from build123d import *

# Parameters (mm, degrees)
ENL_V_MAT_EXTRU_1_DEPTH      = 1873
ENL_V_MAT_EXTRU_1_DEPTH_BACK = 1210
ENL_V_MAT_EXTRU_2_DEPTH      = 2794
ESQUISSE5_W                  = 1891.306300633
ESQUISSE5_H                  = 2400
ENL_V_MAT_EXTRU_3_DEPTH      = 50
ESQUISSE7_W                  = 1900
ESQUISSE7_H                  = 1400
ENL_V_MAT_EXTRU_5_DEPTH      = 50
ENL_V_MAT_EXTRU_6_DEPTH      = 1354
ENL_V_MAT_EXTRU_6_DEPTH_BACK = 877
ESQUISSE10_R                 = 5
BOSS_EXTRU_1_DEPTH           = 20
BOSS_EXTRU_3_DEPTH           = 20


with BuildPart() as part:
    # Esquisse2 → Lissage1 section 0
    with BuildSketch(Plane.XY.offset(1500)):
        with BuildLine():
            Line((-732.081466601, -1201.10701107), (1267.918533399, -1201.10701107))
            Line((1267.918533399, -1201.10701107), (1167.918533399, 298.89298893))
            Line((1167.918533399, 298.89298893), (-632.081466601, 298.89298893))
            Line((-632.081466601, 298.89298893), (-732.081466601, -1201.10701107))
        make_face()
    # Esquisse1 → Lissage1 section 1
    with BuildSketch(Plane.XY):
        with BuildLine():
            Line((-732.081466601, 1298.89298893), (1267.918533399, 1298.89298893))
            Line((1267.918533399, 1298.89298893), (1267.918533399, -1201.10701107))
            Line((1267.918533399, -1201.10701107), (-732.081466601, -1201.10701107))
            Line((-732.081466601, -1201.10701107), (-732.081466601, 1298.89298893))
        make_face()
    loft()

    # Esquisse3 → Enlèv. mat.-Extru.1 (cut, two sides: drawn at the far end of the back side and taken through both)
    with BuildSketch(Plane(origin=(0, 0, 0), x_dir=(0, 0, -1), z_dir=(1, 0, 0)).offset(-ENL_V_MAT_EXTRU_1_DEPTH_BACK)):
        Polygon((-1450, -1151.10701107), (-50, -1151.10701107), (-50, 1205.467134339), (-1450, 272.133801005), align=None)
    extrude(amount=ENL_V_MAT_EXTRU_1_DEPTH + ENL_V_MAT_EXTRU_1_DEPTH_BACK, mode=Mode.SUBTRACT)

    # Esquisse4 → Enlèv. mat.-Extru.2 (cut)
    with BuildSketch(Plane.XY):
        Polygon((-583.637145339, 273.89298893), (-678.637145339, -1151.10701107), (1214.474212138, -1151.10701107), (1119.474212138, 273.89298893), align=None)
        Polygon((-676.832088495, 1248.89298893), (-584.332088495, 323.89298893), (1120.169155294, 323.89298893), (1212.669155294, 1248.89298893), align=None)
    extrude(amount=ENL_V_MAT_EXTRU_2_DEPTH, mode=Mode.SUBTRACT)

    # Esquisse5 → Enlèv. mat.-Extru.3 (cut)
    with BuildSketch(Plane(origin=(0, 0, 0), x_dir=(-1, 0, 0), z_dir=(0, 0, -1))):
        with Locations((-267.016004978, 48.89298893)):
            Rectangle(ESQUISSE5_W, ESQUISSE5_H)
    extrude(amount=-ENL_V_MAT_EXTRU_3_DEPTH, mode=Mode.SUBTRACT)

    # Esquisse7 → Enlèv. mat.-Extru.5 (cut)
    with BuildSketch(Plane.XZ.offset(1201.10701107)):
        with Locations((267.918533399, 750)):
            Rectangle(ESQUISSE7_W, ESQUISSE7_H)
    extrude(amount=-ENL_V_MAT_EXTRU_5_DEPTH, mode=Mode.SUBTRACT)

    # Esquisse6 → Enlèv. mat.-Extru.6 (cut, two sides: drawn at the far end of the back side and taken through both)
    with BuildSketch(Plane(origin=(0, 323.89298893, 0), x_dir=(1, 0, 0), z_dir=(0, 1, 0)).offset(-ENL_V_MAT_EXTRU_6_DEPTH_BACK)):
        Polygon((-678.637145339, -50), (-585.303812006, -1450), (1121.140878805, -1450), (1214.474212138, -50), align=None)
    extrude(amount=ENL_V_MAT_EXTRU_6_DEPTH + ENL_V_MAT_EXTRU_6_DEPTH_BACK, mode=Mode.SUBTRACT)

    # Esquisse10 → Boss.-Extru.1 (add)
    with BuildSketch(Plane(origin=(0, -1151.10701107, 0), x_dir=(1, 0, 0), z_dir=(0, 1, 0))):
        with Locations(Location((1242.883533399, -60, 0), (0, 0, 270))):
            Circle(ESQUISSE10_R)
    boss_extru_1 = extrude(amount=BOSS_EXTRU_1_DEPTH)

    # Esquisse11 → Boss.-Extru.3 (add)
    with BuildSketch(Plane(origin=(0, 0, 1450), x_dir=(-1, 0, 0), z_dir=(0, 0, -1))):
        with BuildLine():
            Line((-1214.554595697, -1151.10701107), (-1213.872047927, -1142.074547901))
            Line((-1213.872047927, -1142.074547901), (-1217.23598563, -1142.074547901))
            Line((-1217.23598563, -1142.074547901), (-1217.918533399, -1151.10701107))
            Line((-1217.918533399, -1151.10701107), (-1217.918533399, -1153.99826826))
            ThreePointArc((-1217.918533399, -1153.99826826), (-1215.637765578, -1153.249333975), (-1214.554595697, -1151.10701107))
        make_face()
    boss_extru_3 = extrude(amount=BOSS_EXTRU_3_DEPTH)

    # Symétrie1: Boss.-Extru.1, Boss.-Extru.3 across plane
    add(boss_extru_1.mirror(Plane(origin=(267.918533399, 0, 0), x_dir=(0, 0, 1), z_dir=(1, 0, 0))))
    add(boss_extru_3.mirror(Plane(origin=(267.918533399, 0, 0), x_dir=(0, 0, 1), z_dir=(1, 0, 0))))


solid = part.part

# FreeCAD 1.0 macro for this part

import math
import FreeCAD as App
import Part
import Sketcher
Q = App.Units.Quantity

doc = App.newDocument("Part")
body = doc.addObject("PartDesign::Body", "Body")

# Sketch on XY plane
sketch1 = body.newObject("Sketcher::SketchObject", "Sketch")
sketch1.AttachmentSupport = (doc.getObject("XY_Plane"), [""])
sketch1.MapMode = "FlatFace"
sketch1.AttachmentOffset = App.Placement(App.Vector(0, 0, 1500), App.Rotation())
sketch1.addGeometry(Part.LineSegment(App.Vector(-732, -1201, 0), App.Vector(1268, -1201, 0)), False)
sketch1.addGeometry(Part.LineSegment(App.Vector(1268, -1201, 0), App.Vector(1168, 299, 0)), False)
sketch1.addGeometry(Part.LineSegment(App.Vector(1168, 299, 0), App.Vector(-632, 299, 0)), False)
sketch1.addGeometry(Part.LineSegment(App.Vector(-632, 299, 0), App.Vector(-732, -1201, 0)), False)
sketch1.addConstraint(Sketcher.Constraint("Coincident", 0, 2, 1, 1))
sketch1.addConstraint(Sketcher.Constraint("Coincident", 1, 2, 2, 1))
sketch1.addConstraint(Sketcher.Constraint("Coincident", 2, 2, 3, 1))
sketch1.addConstraint(Sketcher.Constraint("Coincident", 3, 2, 0, 1))
sketch1.addConstraint(Sketcher.Constraint("Horizontal", 0))
sketch1.addConstraint(Sketcher.Constraint("Horizontal", 2))
sketch1.addConstraint(Sketcher.Constraint("Equal", 1, 3))
sketch1.addConstraint(Sketcher.Constraint("DistanceX", 0, 1, 0, 2, Q("2000 mm")))
sketch1.addConstraint(Sketcher.Constraint("DistanceX", 2, 2, 2, 1, Q("1800 mm")))
sketch1.addConstraint(Sketcher.Constraint("DistanceY", 0, 2, 1, 2, Q("1500 mm")))
sketch1.addConstraint(Sketcher.Constraint("DistanceY", 0, 2, -1, 1, Q("1201.107011 mm")))
sketch1.addConstraint(Sketcher.Constraint("DistanceX", -1, 1, 0, 2, Q("1267.918533 mm")))

# Sketch on XY plane
sketch2 = body.newObject("Sketcher::SketchObject", "Sketch001")
sketch2.AttachmentSupport = (doc.getObject("XY_Plane"), [""])
sketch2.MapMode = "FlatFace"
sketch2.addGeometry(Part.LineSegment(App.Vector(1268, 1299, 0), App.Vector(-732, 1299, 0)), False)
sketch2.addGeometry(Part.LineSegment(App.Vector(-732, 1299, 0), App.Vector(-732, -1201, 0)), False)
sketch2.addGeometry(Part.LineSegment(App.Vector(-732, -1201, 0), App.Vector(1268, -1201, 0)), False)
sketch2.addGeometry(Part.LineSegment(App.Vector(1268, -1201, 0), App.Vector(1268, 1299, 0)), False)
sketch2.addConstraint(Sketcher.Constraint("Coincident", 0, 2, 1, 1))
sketch2.addConstraint(Sketcher.Constraint("Coincident", 1, 2, 2, 1))
sketch2.addConstraint(Sketcher.Constraint("Coincident", 2, 2, 3, 1))
sketch2.addConstraint(Sketcher.Constraint("Coincident", 3, 2, 0, 1))
sketch2.addConstraint(Sketcher.Constraint("Horizontal", 0))
sketch2.addConstraint(Sketcher.Constraint("Vertical", 1))
sketch2.addConstraint(Sketcher.Constraint("Horizontal", 2))
sketch2.addConstraint(Sketcher.Constraint("Vertical", 3))
sketch2.addConstraint(Sketcher.Constraint("DistanceX", 0, 2, 0, 1, Q("2000 mm")))
sketch2.addConstraint(Sketcher.Constraint("DistanceY", 1, 2, 1, 1, Q("2500 mm")))
sketch2.addConstraint(Sketcher.Constraint("DistanceY", -1, 1, 0, 2, Q("1298.892989 mm")))
sketch2.addConstraint(Sketcher.Constraint("DistanceX", 0, 2, -1, 1, Q("732.081467 mm")))

additiveloft = body.newObject("PartDesign::AdditiveLoft", "AdditiveLoft")
additiveloft.Profile = sketch1
additiveloft.Sections = [sketch2]

# Sketch on YZ plane
sketch3 = body.newObject("Sketcher::SketchObject", "Sketch002")
sketch3.AttachmentSupport = (doc.getObject("YZ_Plane"), [""])
sketch3.MapMode = "FlatFace"
sketch3.addGeometry(Part.LineSegment(App.Vector(-1151, 1450, 0), App.Vector(-1151, 50, 0)), False)
sketch3.addGeometry(Part.LineSegment(App.Vector(-1151, 50, 0), App.Vector(1205, 50, 0)), False)
sketch3.addGeometry(Part.LineSegment(App.Vector(1205, 50, 0), App.Vector(272, 1450, 0)), False)
sketch3.addGeometry(Part.LineSegment(App.Vector(272, 1450, 0), App.Vector(-1151, 1450, 0)), False)
sketch3.addConstraint(Sketcher.Constraint("Coincident", 0, 2, 1, 1))
sketch3.addConstraint(Sketcher.Constraint("Coincident", 1, 2, 2, 1))
sketch3.addConstraint(Sketcher.Constraint("Coincident", 2, 2, 3, 1))
sketch3.addConstraint(Sketcher.Constraint("Coincident", 3, 2, 0, 1))
sketch3.addConstraint(Sketcher.Constraint("Vertical", 0))
sketch3.addConstraint(Sketcher.Constraint("Horizontal", 1))
sketch3.addConstraint(Sketcher.Constraint("Horizontal", 3))
sketch3.addConstraint(Sketcher.Constraint("DistanceY", 0, 2, 0, 1, Q("1400 mm")))
sketch3.addConstraint(Sketcher.Constraint("DistanceY", -1, 1, 0, 2, Q("50 mm")))
sketch3.addConstraint(Sketcher.Constraint("DistanceX", -1, 1, 2, 2, Q("272.133801 mm")))
sketch3.addConstraint(Sketcher.Constraint("DistanceX", 1, 1, 1, 2, Q("2356.574145 mm")))
sketch3.addConstraint(Sketcher.Constraint("DistanceX", 3, 2, 3, 1, Q("1423.240812 mm")))
pocket1 = body.newObject("PartDesign::Pocket", "Pocket")
pocket1.Profile = sketch3
pocket1.Type = "ThroughAll"
pocket1.Midplane = True

# Sketch on XY plane
sketch4 = body.newObject("Sketcher::SketchObject", "Sketch003")
sketch4.AttachmentSupport = (doc.getObject("XY_Plane"), [""])
sketch4.MapMode = "FlatFace"
sketch4.addGeometry(Part.LineSegment(App.Vector(-584, 274, 0), App.Vector(-679, -1151, 0)), False)
sketch4.addGeometry(Part.LineSegment(App.Vector(-679, -1151, 0), App.Vector(1214, -1151, 0)), False)
sketch4.addGeometry(Part.LineSegment(App.Vector(1214, -1151, 0), App.Vector(1119, 274, 0)), False)
sketch4.addGeometry(Part.LineSegment(App.Vector(1119, 274, 0), App.Vector(-584, 274, 0)), False)
sketch4.addGeometry(Part.LineSegment(App.Vector(-677, 1249, 0), App.Vector(-584, 324, 0)), False)
sketch4.addGeometry(Part.LineSegment(App.Vector(-584, 324, 0), App.Vector(1120, 324, 0)), False)
sketch4.addGeometry(Part.LineSegment(App.Vector(1120, 324, 0), App.Vector(1213, 1249, 0)), False)
sketch4.addGeometry(Part.LineSegment(App.Vector(1213, 1249, 0), App.Vector(-677, 1249, 0)), False)
sketch4.addConstraint(Sketcher.Constraint("Coincident", 0, 2, 1, 1))
sketch4.addConstraint(Sketcher.Constraint("Coincident", 1, 2, 2, 1))
sketch4.addConstraint(Sketcher.Constraint("Coincident", 2, 2, 3, 1))
sketch4.addConstraint(Sketcher.Constraint("Coincident", 3, 2, 0, 1))
sketch4.addConstraint(Sketcher.Constraint("Coincident", 4, 2, 5, 1))
sketch4.addConstraint(Sketcher.Constraint("Coincident", 5, 2, 6, 1))
sketch4.addConstraint(Sketcher.Constraint("Coincident", 6, 2, 7, 1))
sketch4.addConstraint(Sketcher.Constraint("Coincident", 7, 2, 4, 1))
sketch4.addConstraint(Sketcher.Constraint("Horizontal", 1))
sketch4.addConstraint(Sketcher.Constraint("Horizontal", 3))
sketch4.addConstraint(Sketcher.Constraint("Horizontal", 5))
sketch4.addConstraint(Sketcher.Constraint("Horizontal", 7))
sketch4.addConstraint(Sketcher.Constraint("Equal", 0, 2))
sketch4.addConstraint(Sketcher.Constraint("Equal", 4, 6))
sketch4.addConstraint(Sketcher.Constraint("DistanceX", 2, 2, 1, 2, Q("95 mm")))
sketch4.addConstraint(Sketcher.Constraint("DistanceY", 1, 2, 2, 2, Q("1425 mm")))
sketch4.addConstraint(Sketcher.Constraint("DistanceY", 3, 2, 4, 2, Q("50 mm")))
sketch4.addConstraint(Sketcher.Constraint("DistanceY", 5, 2, 6, 2, Q("925 mm")))
sketch4.addConstraint(Sketcher.Constraint("DistanceX", 5, 2, 6, 2, Q("92.5 mm")))
sketch4.addConstraint(Sketcher.Constraint("DistanceX", 4, 2, 2, 2, Q("1703.806301 mm")))
sketch4.addConstraint(Sketcher.Constraint("DistanceX", 3, 2, 5, 2, Q("1703.806301 mm")))
sketch4.addConstraint(Sketcher.Constraint("DistanceX", 1, 1, 1, 2, Q("1893.111357 mm")))
sketch4.addConstraint(Sketcher.Constraint("DistanceY", 0, 2, -1, 1, Q("1151.107011 mm")))
sketch4.addConstraint(Sketcher.Constraint("DistanceX", 4, 2, -1, 1, Q("584.332088 mm")))
pocket2 = body.newObject("PartDesign::Pocket", "Pocket001")
pocket2.Profile = sketch4
pocket2.Length = 2794
pocket2.Reversed = True

# Sketch on XY plane
sketch5 = body.newObject("Sketcher::SketchObject", "Sketch004")
sketch5.AttachmentSupport = (doc.getObject("XY_Plane"), [""])
sketch5.MapMode = "FlatFace"
sketch5.addGeometry(Part.LineSegment(App.Vector(1213, 1249, 0), App.Vector(1213, -1151, 0)), False)
sketch5.addGeometry(Part.LineSegment(App.Vector(1213, -1151, 0), App.Vector(-679, -1151, 0)), False)
sketch5.addGeometry(Part.LineSegment(App.Vector(-679, -1151, 0), App.Vector(-679, 1249, 0)), False)
sketch5.addGeometry(Part.LineSegment(App.Vector(-679, 1249, 0), App.Vector(1213, 1249, 0)), False)
sketch5.addConstraint(Sketcher.Constraint("Coincident", 0, 2, 1, 1))
sketch5.addConstraint(Sketcher.Constraint("Coincident", 1, 2, 2, 1))
sketch5.addConstraint(Sketcher.Constraint("Coincident", 2, 2, 3, 1))
sketch5.addConstraint(Sketcher.Constraint("Coincident", 3, 2, 0, 1))
sketch5.addConstraint(Sketcher.Constraint("Vertical", 0))
sketch5.addConstraint(Sketcher.Constraint("Horizontal", 1))
sketch5.addConstraint(Sketcher.Constraint("Vertical", 2))
sketch5.addConstraint(Sketcher.Constraint("Horizontal", 3))
sketch5.addConstraint(Sketcher.Constraint("DistanceY", 0, 2, 0, 1, Q("2400 mm")))
sketch5.addConstraint(Sketcher.Constraint("DistanceX", 1, 2, 1, 1, Q("1891.306301 mm")))
sketch5.addConstraint(Sketcher.Constraint("DistanceY", 0, 2, -1, 1, Q("1151.107011 mm")))
sketch5.addConstraint(Sketcher.Constraint("DistanceX", -1, 1, 0, 2, Q("1212.669155 mm")))
pocket3 = body.newObject("PartDesign::Pocket", "Pocket002")
pocket3.Profile = sketch5
pocket3.Length = 50
pocket3.Reversed = True

# Sketch on XZ plane
sketch6 = body.newObject("Sketcher::SketchObject", "Sketch005")
sketch6.AttachmentSupport = (doc.getObject("XZ_Plane"), [""])
sketch6.MapMode = "FlatFace"
sketch6.AttachmentOffset = App.Placement(App.Vector(0, 0, 1201.107011), App.Rotation())
sketch6.addGeometry(Part.LineSegment(App.Vector(-682, 1450, 0), App.Vector(-682, 50, 0)), False)
sketch6.addGeometry(Part.LineSegment(App.Vector(-682, 50, 0), App.Vector(1218, 50, 0)), False)
sketch6.addGeometry(Part.LineSegment(App.Vector(1218, 50, 0), App.Vector(1218, 1450, 0)), False)
sketch6.addGeometry(Part.LineSegment(App.Vector(1218, 1450, 0), App.Vector(-682, 1450, 0)), False)
sketch6.addConstraint(Sketcher.Constraint("Coincident", 0, 2, 1, 1))
sketch6.addConstraint(Sketcher.Constraint("Coincident", 1, 2, 2, 1))
sketch6.addConstraint(Sketcher.Constraint("Coincident", 2, 2, 3, 1))
sketch6.addConstraint(Sketcher.Constraint("Coincident", 3, 2, 0, 1))
sketch6.addConstraint(Sketcher.Constraint("Vertical", 0))
sketch6.addConstraint(Sketcher.Constraint("Horizontal", 1))
sketch6.addConstraint(Sketcher.Constraint("Vertical", 2))
sketch6.addConstraint(Sketcher.Constraint("Horizontal", 3))
sketch6.addConstraint(Sketcher.Constraint("DistanceX", 1, 1, 1, 2, Q("1900 mm")))
sketch6.addConstraint(Sketcher.Constraint("DistanceY", 0, 2, 0, 1, Q("1400 mm")))
sketch6.addConstraint(Sketcher.Constraint("DistanceY", -1, 1, 0, 2, Q("50 mm")))
sketch6.addConstraint(Sketcher.Constraint("DistanceX", 0, 2, -1, 1, Q("682.081467 mm")))
pocket4 = body.newObject("PartDesign::Pocket", "Pocket003")
pocket4.Profile = sketch6
pocket4.Length = 50

# Sketch on XZ plane
sketch7 = body.newObject("Sketcher::SketchObject", "Sketch006")
sketch7.AttachmentSupport = (doc.getObject("XZ_Plane"), [""])
sketch7.MapMode = "FlatFace"
sketch7.AttachmentOffset = App.Placement(App.Vector(0, 0, -323.892989), App.Rotation())
sketch7.addGeometry(Part.LineSegment(App.Vector(-679, 50, 0), App.Vector(-585, 1450, 0)), False)
sketch7.addGeometry(Part.LineSegment(App.Vector(-585, 1450, 0), App.Vector(1121, 1450, 0)), False)
sketch7.addGeometry(Part.LineSegment(App.Vector(1121, 1450, 0), App.Vector(1214, 50, 0)), False)
sketch7.addGeometry(Part.LineSegment(App.Vector(1214, 50, 0), App.Vector(-679, 50, 0)), False)
sketch7.addConstraint(Sketcher.Constraint("Coincident", 0, 2, 1, 1))
sketch7.addConstraint(Sketcher.Constraint("Coincident", 1, 2, 2, 1))
sketch7.addConstraint(Sketcher.Constraint("Coincident", 2, 2, 3, 1))
sketch7.addConstraint(Sketcher.Constraint("Coincident", 3, 2, 0, 1))
sketch7.addConstraint(Sketcher.Constraint("Horizontal", 1))
sketch7.addConstraint(Sketcher.Constraint("Horizontal", 3))
sketch7.addConstraint(Sketcher.Constraint("Equal", 0, 2))
sketch7.addConstraint(Sketcher.Constraint("DistanceY", -1, 1, 0, 2, Q("1450 mm")))
sketch7.addConstraint(Sketcher.Constraint("DistanceY", -1, 1, 2, 2, Q("50 mm")))
sketch7.addConstraint(Sketcher.Constraint("DistanceX", 1, 1, 1, 2, Q("1706.444691 mm")))
sketch7.addConstraint(Sketcher.Constraint("Distance", 0, Q("1403.107662 mm")))
sketch7.addConstraint(Sketcher.Constraint("DistanceX", -1, 1, 1, 2, Q("1121.140879 mm")))
pocket5 = body.newObject("PartDesign::Pocket", "Pocket004")
pocket5.Profile = sketch7
pocket5.Type = "ThroughAll"
pocket5.Midplane = True

# Sketch on XZ plane
sketch8 = body.newObject("Sketcher::SketchObject", "Sketch007")
sketch8.AttachmentSupport = (doc.getObject("XZ_Plane"), [""])
sketch8.MapMode = "FlatFace"
sketch8.AttachmentOffset = App.Placement(App.Vector(0, 0, 1151.107011), App.Rotation())
sketch8.addGeometry(Part.Circle(App.Vector(1243, 60, 0), App.Vector(0, 0, 1), 5), False)
sketch8.addConstraint(Sketcher.Constraint("Diameter", 0, Q("10 mm")))
sketch8.addConstraint(Sketcher.Constraint("DistanceY", -1, 1, 0, 3, Q("60 mm")))
sketch8.addConstraint(Sketcher.Constraint("DistanceX", -1, 1, 0, 3, Q("1242.883533 mm")))
pad1 = body.newObject("PartDesign::Pad", "Pad")
pad1.Profile = sketch8
pad1.Length = 20
pad1.Reversed = True

# Sketch on XY plane
sketch9 = body.newObject("Sketcher::SketchObject", "Sketch008")
sketch9.AttachmentSupport = (doc.getObject("XY_Plane"), [""])
sketch9.MapMode = "FlatFace"
sketch9.AttachmentOffset = App.Placement(App.Vector(0, 0, 1450), App.Rotation())
sketch9.addGeometry(Part.LineSegment(App.Vector(1214.6, -1151.1, 0), App.Vector(1213.9, -1142.1, 0)), False)
sketch9.addGeometry(Part.LineSegment(App.Vector(1213.9, -1142.1, 0), App.Vector(1217.2, -1142.1, 0)), False)
sketch9.addGeometry(Part.LineSegment(App.Vector(1217.2, -1142.1, 0), App.Vector(1217.9, -1151.1, 0)), False)
sketch9.addGeometry(Part.LineSegment(App.Vector(1217.9, -1151.1, 0), App.Vector(1217.9, -1154, 0)), False)
sketch9.addGeometry(Part.ArcOfCircle(Part.Circle(App.Vector(1217.7, -1150.9, 0), App.Vector(0, 0, 1), 3.1), math.radians(-176), math.radians(-86)), False)
sketch9.addConstraint(Sketcher.Constraint("Coincident", 0, 2, 1, 1))
sketch9.addConstraint(Sketcher.Constraint("Coincident", 1, 2, 2, 1))
sketch9.addConstraint(Sketcher.Constraint("Coincident", 2, 2, 3, 1))
sketch9.addConstraint(Sketcher.Constraint("Coincident", 3, 2, 4, 2))
sketch9.addConstraint(Sketcher.Constraint("Tangent", 4, 1, 0, 1))
sketch9.addConstraint(Sketcher.Constraint("Horizontal", 1))
sketch9.addConstraint(Sketcher.Constraint("Vertical", 3))
sketch9.addConstraint(Sketcher.Constraint("Parallel", 0, 2))
sketch9.addConstraint(Sketcher.Constraint("Horizontal", 2, 2, 4, 1))
sketch9.addConstraint(Sketcher.Constraint("Radius", 4, Q("3.136514 mm")))
sketch9.addConstraint(Sketcher.Constraint("DistanceX", 1, 1, 1, 2, Q("3.363938 mm")))
sketch9.addConstraint(Sketcher.Constraint("DistanceY", 3, 2, 3, 1, Q("2.891257 mm")))
sketch9.addConstraint(Sketcher.Constraint("DistanceY", 4, 3, -1, 1, Q("1150.870671 mm")))
sketch9.addConstraint(Sketcher.Constraint("DistanceY", 3, 2, 1, 2, Q("11.92372 mm")))
sketch9.addConstraint(Sketcher.Constraint("DistanceX", -1, 1, 4, 3, Q("1217.682193 mm")))
pad2 = body.newObject("PartDesign::Pad", "Pad001")
pad2.Profile = sketch9
pad2.Length = 20
pad2.Reversed = True
doc.recompute()

datumplane = body.newObject("PartDesign::Plane", "DatumPlane")
datumplane.AttachmentSupport = (doc.getObject("YZ_Plane"), [""])
datumplane.MapMode = "FlatFace"
datumplane.AttachmentOffset = App.Placement(App.Vector(0, 0, 267.918533), App.Rotation())
mirrored = body.newObject("PartDesign::Mirrored", "Mirrored")
mirrored.Originals = [pad1, pad2]
mirrored.MirrorPlane = (datumplane, [""])
body.Tip = mirrored

doc.recompute()
